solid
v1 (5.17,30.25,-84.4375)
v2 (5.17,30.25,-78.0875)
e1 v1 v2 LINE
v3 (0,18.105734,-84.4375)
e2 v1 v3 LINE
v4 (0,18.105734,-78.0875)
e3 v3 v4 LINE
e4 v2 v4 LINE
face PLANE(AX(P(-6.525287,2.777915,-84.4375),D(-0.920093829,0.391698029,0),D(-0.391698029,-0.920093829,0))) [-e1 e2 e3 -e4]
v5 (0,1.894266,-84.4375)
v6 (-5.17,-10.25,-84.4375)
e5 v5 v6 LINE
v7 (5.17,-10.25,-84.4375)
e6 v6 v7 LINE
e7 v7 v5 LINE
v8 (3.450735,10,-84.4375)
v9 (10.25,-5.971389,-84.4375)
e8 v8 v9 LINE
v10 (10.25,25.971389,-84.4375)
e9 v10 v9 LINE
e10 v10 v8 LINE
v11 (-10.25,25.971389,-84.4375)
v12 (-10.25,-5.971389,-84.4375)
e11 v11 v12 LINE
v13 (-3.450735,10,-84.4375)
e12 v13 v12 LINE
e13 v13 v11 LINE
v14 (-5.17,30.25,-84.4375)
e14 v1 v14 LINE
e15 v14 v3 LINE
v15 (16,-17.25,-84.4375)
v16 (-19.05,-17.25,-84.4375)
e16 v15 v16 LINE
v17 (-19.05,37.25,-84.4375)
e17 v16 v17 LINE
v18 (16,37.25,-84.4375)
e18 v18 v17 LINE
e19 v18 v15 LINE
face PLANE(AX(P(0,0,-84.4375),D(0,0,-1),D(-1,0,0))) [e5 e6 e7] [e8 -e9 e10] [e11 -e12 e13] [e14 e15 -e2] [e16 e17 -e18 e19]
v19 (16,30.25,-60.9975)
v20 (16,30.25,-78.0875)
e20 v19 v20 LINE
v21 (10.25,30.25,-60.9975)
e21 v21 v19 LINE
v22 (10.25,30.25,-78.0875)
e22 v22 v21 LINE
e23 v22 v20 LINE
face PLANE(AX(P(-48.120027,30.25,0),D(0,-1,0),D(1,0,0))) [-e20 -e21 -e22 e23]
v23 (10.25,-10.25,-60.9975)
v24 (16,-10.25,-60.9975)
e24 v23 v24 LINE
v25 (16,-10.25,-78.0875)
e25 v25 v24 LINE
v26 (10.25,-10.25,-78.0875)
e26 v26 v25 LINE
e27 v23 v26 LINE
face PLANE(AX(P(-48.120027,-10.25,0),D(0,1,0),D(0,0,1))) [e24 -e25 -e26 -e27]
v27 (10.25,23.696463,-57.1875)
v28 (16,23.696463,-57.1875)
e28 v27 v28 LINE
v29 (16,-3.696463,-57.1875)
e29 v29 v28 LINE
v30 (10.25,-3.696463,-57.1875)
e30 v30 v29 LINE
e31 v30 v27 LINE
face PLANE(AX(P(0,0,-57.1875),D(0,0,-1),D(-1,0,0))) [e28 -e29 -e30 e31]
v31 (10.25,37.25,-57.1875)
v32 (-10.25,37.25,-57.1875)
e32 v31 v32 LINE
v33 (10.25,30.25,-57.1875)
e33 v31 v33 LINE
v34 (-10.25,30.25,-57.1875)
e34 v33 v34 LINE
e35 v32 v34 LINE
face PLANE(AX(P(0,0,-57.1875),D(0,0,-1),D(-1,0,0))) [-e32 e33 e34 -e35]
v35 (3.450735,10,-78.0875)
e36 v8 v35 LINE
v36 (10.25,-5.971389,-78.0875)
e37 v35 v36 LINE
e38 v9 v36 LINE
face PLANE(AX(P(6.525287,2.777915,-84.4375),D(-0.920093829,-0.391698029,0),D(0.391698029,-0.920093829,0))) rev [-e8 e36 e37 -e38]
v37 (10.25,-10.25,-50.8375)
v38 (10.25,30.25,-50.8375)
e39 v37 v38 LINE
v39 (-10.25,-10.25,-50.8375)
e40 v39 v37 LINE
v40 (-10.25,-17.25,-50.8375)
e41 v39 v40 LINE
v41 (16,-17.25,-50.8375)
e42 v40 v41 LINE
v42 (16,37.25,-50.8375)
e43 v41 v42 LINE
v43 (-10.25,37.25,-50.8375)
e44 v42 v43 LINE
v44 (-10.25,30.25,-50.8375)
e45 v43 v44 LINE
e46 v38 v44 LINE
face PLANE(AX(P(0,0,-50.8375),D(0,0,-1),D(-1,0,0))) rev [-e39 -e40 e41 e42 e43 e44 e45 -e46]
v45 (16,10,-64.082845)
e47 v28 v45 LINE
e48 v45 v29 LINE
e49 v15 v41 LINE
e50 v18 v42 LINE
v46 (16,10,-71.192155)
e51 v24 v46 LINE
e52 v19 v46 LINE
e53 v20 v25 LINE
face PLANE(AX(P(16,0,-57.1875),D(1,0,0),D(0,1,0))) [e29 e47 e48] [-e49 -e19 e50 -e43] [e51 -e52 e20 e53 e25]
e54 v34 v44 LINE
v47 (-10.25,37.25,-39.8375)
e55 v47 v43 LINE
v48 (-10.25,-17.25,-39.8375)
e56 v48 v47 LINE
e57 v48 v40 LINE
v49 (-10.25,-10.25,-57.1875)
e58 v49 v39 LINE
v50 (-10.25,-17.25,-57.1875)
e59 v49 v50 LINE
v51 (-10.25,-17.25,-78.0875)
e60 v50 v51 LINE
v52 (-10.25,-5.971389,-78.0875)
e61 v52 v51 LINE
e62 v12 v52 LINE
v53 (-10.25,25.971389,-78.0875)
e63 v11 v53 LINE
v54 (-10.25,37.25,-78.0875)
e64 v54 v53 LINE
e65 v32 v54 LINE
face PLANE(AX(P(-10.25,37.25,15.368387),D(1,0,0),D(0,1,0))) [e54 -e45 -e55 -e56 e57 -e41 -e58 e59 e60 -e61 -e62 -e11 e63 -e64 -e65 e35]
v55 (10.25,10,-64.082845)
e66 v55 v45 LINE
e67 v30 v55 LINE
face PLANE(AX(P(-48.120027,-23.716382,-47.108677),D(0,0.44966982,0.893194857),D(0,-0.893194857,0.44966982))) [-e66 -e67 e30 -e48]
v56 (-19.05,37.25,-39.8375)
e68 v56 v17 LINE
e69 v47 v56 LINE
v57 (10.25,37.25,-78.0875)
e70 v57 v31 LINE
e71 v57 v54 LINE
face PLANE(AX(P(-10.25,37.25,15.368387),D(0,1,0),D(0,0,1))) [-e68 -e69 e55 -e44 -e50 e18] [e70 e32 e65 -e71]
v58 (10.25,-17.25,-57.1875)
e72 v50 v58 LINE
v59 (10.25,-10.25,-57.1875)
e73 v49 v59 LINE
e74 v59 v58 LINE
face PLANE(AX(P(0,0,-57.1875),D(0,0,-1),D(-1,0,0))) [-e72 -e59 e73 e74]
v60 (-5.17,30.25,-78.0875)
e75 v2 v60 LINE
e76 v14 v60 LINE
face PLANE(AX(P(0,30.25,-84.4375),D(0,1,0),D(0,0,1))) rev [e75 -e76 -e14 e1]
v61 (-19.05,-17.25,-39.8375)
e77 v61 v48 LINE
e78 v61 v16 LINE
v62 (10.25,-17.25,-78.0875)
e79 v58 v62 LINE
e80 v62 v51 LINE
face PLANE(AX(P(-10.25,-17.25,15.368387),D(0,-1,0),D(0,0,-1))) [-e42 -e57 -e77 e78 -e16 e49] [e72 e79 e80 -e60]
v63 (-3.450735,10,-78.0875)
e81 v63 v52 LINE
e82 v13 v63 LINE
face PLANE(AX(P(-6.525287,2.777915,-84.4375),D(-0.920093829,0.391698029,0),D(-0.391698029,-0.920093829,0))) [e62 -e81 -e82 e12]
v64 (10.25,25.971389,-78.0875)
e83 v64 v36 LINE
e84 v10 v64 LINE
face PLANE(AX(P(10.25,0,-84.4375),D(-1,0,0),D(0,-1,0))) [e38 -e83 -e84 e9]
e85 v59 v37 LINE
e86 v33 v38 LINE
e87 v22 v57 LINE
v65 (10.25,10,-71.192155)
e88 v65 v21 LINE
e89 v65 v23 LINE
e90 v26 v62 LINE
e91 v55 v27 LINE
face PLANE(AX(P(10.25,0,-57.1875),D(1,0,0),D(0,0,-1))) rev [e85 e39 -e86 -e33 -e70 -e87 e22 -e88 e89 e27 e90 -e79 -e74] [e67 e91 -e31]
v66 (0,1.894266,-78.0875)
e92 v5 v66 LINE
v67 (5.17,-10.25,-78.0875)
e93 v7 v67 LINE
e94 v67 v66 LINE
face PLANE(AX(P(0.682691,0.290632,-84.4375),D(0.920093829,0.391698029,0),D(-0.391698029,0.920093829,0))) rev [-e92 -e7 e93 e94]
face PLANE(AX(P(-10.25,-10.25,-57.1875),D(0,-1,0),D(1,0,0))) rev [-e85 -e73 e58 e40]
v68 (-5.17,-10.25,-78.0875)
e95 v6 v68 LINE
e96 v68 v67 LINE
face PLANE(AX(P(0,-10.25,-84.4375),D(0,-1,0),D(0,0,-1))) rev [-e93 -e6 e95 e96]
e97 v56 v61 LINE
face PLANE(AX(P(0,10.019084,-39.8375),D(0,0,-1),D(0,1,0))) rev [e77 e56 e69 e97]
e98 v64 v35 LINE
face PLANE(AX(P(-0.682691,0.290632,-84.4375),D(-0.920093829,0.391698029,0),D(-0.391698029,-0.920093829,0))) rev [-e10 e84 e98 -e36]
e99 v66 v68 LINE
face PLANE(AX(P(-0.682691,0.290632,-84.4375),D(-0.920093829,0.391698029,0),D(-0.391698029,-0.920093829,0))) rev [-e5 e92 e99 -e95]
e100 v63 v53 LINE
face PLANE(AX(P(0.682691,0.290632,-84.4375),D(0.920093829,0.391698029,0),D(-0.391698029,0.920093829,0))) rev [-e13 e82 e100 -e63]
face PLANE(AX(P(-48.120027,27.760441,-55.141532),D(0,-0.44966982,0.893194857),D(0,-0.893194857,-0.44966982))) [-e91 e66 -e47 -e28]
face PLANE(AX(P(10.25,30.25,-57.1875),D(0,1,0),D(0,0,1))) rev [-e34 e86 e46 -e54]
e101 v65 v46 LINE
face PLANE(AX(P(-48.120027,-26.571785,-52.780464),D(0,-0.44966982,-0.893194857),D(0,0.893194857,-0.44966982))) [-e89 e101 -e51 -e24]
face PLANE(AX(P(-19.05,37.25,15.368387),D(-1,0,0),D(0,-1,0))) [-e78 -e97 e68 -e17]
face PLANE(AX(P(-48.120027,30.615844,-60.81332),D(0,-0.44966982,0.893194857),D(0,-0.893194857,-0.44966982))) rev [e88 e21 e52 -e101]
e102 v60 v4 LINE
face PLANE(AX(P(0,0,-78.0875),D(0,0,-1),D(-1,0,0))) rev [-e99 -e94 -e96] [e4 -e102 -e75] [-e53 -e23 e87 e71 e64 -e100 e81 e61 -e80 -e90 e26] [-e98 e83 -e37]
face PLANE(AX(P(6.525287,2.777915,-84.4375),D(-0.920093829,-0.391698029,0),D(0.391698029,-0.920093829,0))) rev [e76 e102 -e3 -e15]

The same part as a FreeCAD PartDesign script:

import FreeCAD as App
import Part
import Sketcher


def add_polygon(sketch, points):
    """Adds a closed chain of lines whose ends are joined by coincident constraints."""
    first, n = sketch.GeometryCount, len(points)
    for a, b in zip(points, points[1:] + points[:1]):
        sketch.addGeometry(Part.LineSegment(App.Vector(*a, 0), App.Vector(*b, 0)), False)
    for i in range(n):
        sketch.addConstraint(Sketcher.Constraint("Coincident", first + i, 2, first + (i + 1) % n, 1))

doc = App.newDocument("Part")
body = doc.addObject("PartDesign::Body", "Body")

# Sketch on XY plane
sketch1 = body.newObject("Sketcher::SketchObject", "Sketch")
sketch1.AttachmentSupport = (doc.getObject("XY_Plane"), [""])
sketch1.MapMode = "FlatFace"
sketch1.AttachmentOffset = App.Placement(App.Vector(0, 0, -77.8375), App.Rotation())
add_polygon(sketch1, [(-10, 37), (-10, -17), (-19, -17), (-19, 37)])  # lines 0-3
sketch1.addConstraint([
    Sketcher.Constraint("Vertical", 0),
    Sketcher.Constraint("Horizontal", 1),
    Sketcher.Constraint("Vertical", 2),
    Sketcher.Constraint("Horizontal", 3),
    Sketcher.Constraint("DistanceX", 1, 2, 1, 1, 8.8),
    Sketcher.Constraint("DistanceY", 0, 2, 0, 1, 54.5),
    Sketcher.Constraint("DistanceX", 0, 2, -1, 1, 10.25),
    Sketcher.Constraint("DistanceY", 0, 2, -1, 1, 17.25),
])
pad1 = body.newObject("PartDesign::Pad", "Pad")
pad1.Profile = sketch1
pad1.Type = "TwoLengths"
pad1.Length = 0.25
pad1.Length2 = 38
pad1.Reversed = True

# Sketch on XY plane
sketch2 = body.newObject("Sketcher::SketchObject", "Sketch001")
sketch2.AttachmentSupport = (doc.getObject("XY_Plane"), [""])
sketch2.MapMode = "FlatFace"
sketch2.AttachmentOffset = App.Placement(App.Vector(0, 0, -50.8375), App.Rotation())
add_polygon(sketch2, [(-10, -17), (-10, -10), (10, -10), (10, 30), (-10, 30), (-10, 37), (16, 37), (16, -17)])  # lines 0-7
sketch2.addConstraint([
    Sketcher.Constraint("Vertical", 0),
    Sketcher.Constraint("Horizontal", 1),
    Sketcher.Constraint("Vertical", 2),
    Sketcher.Constraint("Horizontal", 3),
    Sketcher.Constraint("Vertical", 4),
    Sketcher.Constraint("Horizontal", 5),
    Sketcher.Constraint("Vertical", 6),
    Sketcher.Constraint("Horizontal", 7),
    Sketcher.Constraint("Vertical", 0, 2, 3, 2),
    Sketcher.Constraint("Equal", 0, 4),
    Sketcher.Constraint("DistanceY", 0, 1, 0, 2, 7.0),
    Sketcher.Constraint("DistanceX", 1, 1, 1, 2, 20.5),
    Sketcher.Constraint("DistanceY", 2, 1, 2, 2, 40.5),
    Sketcher.Constraint("DistanceX", -1, 1, 5, 2, 16.0),
    Sketcher.Constraint("DistanceX", 5, 1, 5, 2, 26.25),
    Sketcher.Constraint("DistanceY", 0, 2, -1, 1, 10.25),
])
pad2 = body.newObject("PartDesign::Pad", "Pad001")
pad2.Profile = sketch2
pad2.Length = 6.35
pad2.Reversed = True

# Sketch on XY plane
sketch3 = body.newObject("Sketcher::SketchObject", "Sketch002")
sketch3.AttachmentSupport = (doc.getObject("XY_Plane"), [""])
sketch3.MapMode = "FlatFace"
sketch3.AttachmentOffset = App.Placement(App.Vector(0, 0, -78.0875), App.Rotation())
add_polygon(sketch3, [(-19, -17), (-19, 37), (16, 37), (16, -17)])  # lines 0-3
add_polygon(sketch3, [(10, 26), (3, 10), (10, -6)])  # lines 4-6
add_polygon(sketch3, [(-3, 10), (-10, 26), (-10, -6)])  # lines 7-9
add_polygon(sketch3, [(5, -10), (0, 2), (-5, -10)])  # lines 10-12
add_polygon(sketch3, [(-5, 30), (0, 18), (5, 30)])  # lines 13-15
sketch3.addConstraint([
    Sketcher.Constraint("Vertical", 0),
    Sketcher.Constraint("Horizontal", 1),
    Sketcher.Constraint("Vertical", 2),
    Sketcher.Constraint("Horizontal", 3),
    Sketcher.Constraint("Vertical", 6),
    Sketcher.Constraint("Vertical", 8),
    Sketcher.Constraint("Horizontal", 12),
    Sketcher.Constraint("Horizontal", 15),
    Sketcher.Constraint("Symmetric", 6, 2, 7, 2, -2),
    Sketcher.Constraint("Symmetric", 4, 2, 9, 2, -2),
    Sketcher.Constraint("PointOnObject", 10, 2, -2),
    Sketcher.Constraint("PointOnObject", 13, 2, -2),
    Sketcher.Constraint("Parallel", 5, 7),
    Sketcher.Constraint("Parallel", 4, 9),
    Sketcher.Constraint("Parallel", 7, 10),
    Sketcher.Constraint("Parallel", 9, 11),
    Sketcher.Constraint("Parallel", 10, 13),
    Sketcher.Constraint("Parallel", 11, 14),
    Sketcher.Constraint("Vertical", 12, 2, 14, 2),
    Sketcher.Constraint("DistanceY", 0, 1, 0, 2, 54.5),
    Sketcher.Constraint("DistanceX", -1, 1, 1, 2, 16.0),
    Sketcher.Constraint("DistanceY", -1, 1, 4, 2, 10.0),
    Sketcher.Constraint("DistanceY", 3, 2, 11, 2, 7.0),
    Sketcher.Constraint("DistanceY", 14, 2, 1, 2, 7.0),
    Sketcher.Constraint("DistanceX", 1, 1, 1, 2, 35.05),
    Sketcher.Constraint("DistanceX", 12, 1, 12, 2, 10.34),
    Sketcher.Constraint("DistanceX", 3, 2, 5, 2, 29.3),
    Sketcher.Constraint("DistanceY", -1, 1, 0, 2, 37.25),
    Sketcher.Constraint("DistanceY", 6, 1, 6, 2, 31.942779),
    Sketcher.Constraint("DistanceX", 9, 2, 4, 2, 6.90147),
])
pad3 = body.newObject("PartDesign::Pad", "Pad002")
pad3.Profile = sketch3
pad3.Length = 6.35
pad3.Reversed = True

# Sketch on YZ plane
sketch4 = body.newObject("Sketcher::SketchObject", "Sketch003")
sketch4.AttachmentSupport = (doc.getObject("YZ_Plane"), [""])
sketch4.MapMode = "FlatFace"
sketch4.AttachmentOffset = App.Placement(App.Vector(0, 0, 16), App.Rotation())
add_polygon(sketch4, [(10, -64), (-4, -57), (-17, -57), (-17, -78), (-10, -78), (-10, -61), (3, -68), (10, -71), (17, -68), (30, -61), (30, -78), (37, -78), (37, -57), (24, -57)])  # lines 0-13
sketch4.addConstraint([
    Sketcher.Constraint("Horizontal", 1),
    Sketcher.Constraint("Vertical", 2),
    Sketcher.Constraint("Horizontal", 3),
    Sketcher.Constraint("Vertical", 4),
    Sketcher.Constraint("Vertical", 9),
    Sketcher.Constraint("Horizontal", 10),
    Sketcher.Constraint("Vertical", 11),
    Sketcher.Constraint("Horizontal", 12),
    Sketcher.Constraint("Parallel", 0, 5),
    Sketcher.Constraint("Parallel", 5, 6),
    Sketcher.Constraint("Parallel", 7, 8),
    Sketcher.Constraint("Parallel", 8, 13),
    Sketcher.Constraint("Horizontal", 5, 2, 7, 2),
    Sketcher.Constraint("Horizontal", 4, 2, 8, 2),
    Sketcher.Constraint("Horizontal", 3, 2, 9, 2),
    Sketcher.Constraint("Horizontal", 1, 2, 11, 2),
    Sketcher.Constraint("Vertical", 6, 2, 13, 2),
    Sketcher.Constraint("Equal", 3, 10),
    Sketcher.Constraint("Equal", 1, 12),
    Sketcher.Constraint("DistanceX", 3, 1, 3, 2, 7.0),
    Sketcher.Constraint("DistanceY", 2, 2, 2, 1, 20.9),
    Sketcher.Constraint("DistanceX", -1, 1, 6, 2, 10.0),
    Sketcher.Constraint("DistanceY", 4, 1, 4, 2, 17.09),
    Sketcher.Constraint("DistanceX", 4, 2, 8, 2, 40.5),
    Sketcher.Constraint("DistanceY", 5, 2, 0, 2, 10.45),
    Sketcher.Constraint("DistanceY", 0, 2, -1, 1, 57.1875),
    Sketcher.Constraint("DistanceX", 0, 2, 7, 2, 20.7572),
    Sketcher.Constraint("Distance", 0, 15.334239),
])
pad4 = body.newObject("PartDesign::Pad", "Pad003")
pad4.Profile = sketch4
pad4.Length = 5.75
pad4.Reversed = True

doc.recompute()
